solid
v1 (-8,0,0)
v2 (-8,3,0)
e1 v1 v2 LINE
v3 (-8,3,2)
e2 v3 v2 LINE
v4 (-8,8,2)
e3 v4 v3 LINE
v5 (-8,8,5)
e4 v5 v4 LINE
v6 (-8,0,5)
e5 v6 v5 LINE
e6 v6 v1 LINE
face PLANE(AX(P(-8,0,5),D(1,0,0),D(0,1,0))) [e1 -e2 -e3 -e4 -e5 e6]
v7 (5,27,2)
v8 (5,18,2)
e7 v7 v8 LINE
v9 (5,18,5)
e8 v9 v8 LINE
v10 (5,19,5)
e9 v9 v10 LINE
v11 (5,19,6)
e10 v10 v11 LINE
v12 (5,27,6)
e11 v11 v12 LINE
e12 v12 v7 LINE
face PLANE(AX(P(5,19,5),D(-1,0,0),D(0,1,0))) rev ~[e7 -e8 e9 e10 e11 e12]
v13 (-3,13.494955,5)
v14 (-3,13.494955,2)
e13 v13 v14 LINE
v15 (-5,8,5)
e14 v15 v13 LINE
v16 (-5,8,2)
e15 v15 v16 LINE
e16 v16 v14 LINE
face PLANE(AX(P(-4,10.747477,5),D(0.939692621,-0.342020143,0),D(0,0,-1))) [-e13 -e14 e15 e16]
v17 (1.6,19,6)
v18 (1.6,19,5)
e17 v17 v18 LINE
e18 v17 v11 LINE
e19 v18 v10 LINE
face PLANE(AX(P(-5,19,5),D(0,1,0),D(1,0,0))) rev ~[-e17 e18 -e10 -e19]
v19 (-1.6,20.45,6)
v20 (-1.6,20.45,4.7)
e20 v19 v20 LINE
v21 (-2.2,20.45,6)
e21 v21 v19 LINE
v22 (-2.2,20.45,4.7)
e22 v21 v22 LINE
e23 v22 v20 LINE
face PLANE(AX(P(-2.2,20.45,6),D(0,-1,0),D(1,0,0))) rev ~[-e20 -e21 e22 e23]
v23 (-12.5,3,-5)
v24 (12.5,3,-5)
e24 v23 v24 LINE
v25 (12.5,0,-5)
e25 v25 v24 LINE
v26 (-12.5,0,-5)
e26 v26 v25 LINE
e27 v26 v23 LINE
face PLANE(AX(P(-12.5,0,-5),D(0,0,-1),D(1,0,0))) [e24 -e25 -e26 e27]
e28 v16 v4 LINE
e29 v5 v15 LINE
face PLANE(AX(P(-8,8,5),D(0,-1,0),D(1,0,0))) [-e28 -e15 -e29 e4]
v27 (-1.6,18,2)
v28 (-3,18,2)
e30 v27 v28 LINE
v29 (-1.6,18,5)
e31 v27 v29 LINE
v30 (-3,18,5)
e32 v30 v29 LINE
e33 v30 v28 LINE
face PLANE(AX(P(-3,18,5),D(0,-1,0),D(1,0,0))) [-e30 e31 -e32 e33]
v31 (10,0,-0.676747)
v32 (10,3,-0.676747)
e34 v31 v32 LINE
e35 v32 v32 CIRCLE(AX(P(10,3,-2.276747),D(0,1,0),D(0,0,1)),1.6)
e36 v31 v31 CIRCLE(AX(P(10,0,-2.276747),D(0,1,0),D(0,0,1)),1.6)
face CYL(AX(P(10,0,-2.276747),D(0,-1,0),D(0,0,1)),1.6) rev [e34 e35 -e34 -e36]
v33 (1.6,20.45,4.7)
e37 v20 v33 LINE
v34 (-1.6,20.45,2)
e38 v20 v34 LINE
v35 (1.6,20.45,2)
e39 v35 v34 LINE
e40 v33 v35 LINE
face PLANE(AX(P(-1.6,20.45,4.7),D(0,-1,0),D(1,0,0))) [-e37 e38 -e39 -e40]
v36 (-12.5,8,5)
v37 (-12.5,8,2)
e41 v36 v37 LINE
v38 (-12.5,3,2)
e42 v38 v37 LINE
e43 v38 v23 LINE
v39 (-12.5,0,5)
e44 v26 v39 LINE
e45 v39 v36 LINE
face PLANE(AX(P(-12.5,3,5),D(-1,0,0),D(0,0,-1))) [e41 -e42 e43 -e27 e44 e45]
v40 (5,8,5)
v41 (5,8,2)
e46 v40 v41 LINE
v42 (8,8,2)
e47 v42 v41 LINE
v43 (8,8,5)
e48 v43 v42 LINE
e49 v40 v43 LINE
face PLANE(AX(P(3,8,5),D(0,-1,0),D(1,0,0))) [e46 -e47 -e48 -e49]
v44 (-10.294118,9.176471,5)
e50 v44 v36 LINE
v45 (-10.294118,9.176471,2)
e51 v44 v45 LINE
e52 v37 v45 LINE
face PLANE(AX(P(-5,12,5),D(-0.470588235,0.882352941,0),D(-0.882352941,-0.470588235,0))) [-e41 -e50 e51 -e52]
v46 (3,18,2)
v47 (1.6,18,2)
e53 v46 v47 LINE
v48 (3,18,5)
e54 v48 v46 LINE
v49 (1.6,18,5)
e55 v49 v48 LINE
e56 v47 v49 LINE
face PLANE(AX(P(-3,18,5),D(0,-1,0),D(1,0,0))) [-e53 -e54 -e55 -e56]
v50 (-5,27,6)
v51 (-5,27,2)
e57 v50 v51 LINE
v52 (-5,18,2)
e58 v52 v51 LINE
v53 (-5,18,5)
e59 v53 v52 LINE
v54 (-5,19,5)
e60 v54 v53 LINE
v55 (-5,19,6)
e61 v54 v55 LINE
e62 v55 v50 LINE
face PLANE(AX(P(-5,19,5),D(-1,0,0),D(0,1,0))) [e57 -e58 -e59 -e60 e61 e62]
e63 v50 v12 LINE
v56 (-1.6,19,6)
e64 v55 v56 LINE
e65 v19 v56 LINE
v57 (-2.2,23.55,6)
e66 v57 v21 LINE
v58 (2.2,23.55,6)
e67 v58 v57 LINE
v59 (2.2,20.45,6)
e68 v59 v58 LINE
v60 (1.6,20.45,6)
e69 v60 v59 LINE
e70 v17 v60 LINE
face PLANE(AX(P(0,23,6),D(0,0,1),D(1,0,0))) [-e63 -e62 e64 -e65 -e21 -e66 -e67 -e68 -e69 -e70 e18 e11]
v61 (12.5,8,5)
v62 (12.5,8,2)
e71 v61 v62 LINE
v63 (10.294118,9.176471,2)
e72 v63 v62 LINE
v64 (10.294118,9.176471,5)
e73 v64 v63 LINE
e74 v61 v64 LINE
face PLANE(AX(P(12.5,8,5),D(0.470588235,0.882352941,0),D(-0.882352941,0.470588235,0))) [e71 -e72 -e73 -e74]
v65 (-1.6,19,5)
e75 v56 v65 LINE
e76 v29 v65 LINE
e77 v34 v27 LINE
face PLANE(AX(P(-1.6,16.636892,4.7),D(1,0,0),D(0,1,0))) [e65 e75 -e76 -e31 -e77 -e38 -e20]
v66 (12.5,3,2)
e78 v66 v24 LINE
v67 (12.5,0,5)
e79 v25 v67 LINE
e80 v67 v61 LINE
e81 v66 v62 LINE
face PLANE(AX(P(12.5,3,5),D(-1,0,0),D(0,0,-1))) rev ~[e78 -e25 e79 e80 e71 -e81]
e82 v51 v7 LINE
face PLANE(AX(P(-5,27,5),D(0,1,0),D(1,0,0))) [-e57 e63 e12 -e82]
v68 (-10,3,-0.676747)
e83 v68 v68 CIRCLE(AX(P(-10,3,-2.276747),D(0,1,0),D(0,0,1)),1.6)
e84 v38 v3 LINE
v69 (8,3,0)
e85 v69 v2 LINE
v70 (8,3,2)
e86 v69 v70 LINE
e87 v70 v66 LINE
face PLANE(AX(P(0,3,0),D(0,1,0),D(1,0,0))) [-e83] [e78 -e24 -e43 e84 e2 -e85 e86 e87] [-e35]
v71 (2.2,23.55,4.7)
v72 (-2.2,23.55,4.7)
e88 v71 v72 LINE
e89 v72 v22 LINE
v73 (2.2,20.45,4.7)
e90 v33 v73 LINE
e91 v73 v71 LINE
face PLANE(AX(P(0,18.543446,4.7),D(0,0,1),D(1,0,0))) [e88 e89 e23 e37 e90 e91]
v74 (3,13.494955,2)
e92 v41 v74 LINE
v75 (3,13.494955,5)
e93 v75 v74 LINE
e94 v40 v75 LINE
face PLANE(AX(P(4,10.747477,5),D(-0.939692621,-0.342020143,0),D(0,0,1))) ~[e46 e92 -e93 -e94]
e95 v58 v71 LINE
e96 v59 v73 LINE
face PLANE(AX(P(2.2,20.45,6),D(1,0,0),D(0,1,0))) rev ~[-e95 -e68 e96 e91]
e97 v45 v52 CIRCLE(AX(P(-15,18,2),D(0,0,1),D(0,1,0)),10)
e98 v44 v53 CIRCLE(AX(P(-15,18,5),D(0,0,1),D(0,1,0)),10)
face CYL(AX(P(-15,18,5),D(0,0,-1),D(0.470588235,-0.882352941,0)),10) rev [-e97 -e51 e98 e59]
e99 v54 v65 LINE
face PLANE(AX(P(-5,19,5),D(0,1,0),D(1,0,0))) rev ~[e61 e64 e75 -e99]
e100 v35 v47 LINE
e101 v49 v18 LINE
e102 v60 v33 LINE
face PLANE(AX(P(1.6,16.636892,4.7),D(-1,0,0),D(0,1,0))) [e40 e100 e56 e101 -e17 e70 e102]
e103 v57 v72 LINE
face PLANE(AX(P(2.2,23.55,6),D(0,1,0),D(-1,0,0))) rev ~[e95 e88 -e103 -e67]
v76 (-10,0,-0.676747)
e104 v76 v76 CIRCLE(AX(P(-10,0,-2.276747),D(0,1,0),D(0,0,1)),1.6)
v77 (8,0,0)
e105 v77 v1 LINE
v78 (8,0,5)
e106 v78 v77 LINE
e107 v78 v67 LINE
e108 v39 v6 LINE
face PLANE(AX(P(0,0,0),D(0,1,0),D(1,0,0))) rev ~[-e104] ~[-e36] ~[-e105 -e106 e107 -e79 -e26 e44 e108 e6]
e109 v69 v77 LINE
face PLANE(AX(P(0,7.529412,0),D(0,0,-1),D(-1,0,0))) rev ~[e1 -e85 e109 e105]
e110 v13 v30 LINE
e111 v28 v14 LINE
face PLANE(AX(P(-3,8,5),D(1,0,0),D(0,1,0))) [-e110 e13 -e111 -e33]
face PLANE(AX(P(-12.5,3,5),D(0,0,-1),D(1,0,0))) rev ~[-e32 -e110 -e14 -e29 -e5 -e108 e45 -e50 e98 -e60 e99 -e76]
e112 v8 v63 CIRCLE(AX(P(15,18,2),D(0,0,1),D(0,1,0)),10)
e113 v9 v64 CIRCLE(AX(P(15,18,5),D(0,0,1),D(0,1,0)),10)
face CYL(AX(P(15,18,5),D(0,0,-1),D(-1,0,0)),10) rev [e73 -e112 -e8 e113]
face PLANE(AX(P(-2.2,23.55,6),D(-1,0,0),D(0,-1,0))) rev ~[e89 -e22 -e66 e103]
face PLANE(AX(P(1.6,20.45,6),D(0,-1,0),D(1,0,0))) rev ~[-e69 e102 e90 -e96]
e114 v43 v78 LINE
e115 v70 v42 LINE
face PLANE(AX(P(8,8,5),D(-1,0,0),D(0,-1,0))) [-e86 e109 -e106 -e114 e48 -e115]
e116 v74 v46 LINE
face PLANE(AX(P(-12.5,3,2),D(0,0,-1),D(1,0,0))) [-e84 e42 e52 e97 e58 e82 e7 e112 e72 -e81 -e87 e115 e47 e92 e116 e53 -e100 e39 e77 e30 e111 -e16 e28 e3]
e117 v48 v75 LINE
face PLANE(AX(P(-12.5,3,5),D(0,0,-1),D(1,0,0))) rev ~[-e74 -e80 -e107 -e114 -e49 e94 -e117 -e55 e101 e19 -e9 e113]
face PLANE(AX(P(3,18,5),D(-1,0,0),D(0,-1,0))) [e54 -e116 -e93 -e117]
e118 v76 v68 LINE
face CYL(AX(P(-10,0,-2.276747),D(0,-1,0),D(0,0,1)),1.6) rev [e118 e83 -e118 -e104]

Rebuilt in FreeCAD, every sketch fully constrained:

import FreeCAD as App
import Part
import Sketcher

V = App.Vector


def edges_at(feature, points):
    """Names of the edges that pass closest to the given points."""
    edges = feature.Shape.Edges
    near = lambda p: min(range(len(edges)), key=lambda i: edges[i].distToShape(Part.Vertex(*p))[0])
    return sorted({f"Edge{near(p) + 1}" for p in points})


def add_polygon(sketch, points):
    """Adds a closed chain of lines whose ends are joined by coincident constraints."""
    first, n = sketch.GeometryCount, len(points)
    for a, b in zip(points, points[1:] + points[:1]):
        sketch.addGeometry(Part.LineSegment(App.Vector(*a, 0), App.Vector(*b, 0)), False)
    for i in range(n):
        sketch.addConstraint(Sketcher.Constraint("Coincident", first + i, 2, first + (i + 1) % n, 1))

doc = App.newDocument("Part")
body = doc.addObject("PartDesign::Body", "Body")

# Sketch on XZ plane
sketch1 = body.newObject("Sketcher::SketchObject", "Sketch")
sketch1.AttachmentSupport = (doc.getObject("XZ_Plane"), [""])
sketch1.MapMode = "FlatFace"
add_polygon(sketch1, [(-12.5, -5), (-12.5, 5), (12.5, 5), (12.5, -5)])  # lines 0-3
sketch1.addGeometry(Part.Circle(V(-10, -2.3, 0), V(0, 0, 1), 1.6), False)  # 4
sketch1.addGeometry(Part.Circle(V(10, -2.3, 0), V(0, 0, 1), 1.6), False)  # 5
sketch1.addConstraint([
    Sketcher.Constraint("Vertical", 0),
    Sketcher.Constraint("Horizontal", 1),
    Sketcher.Constraint("Vertical", 2),
    Sketcher.Constraint("Horizontal", 3),
    Sketcher.Constraint("Equal", 4, 5),
    Sketcher.Constraint("Symmetric", 0, 2, 2, 2, -1, 1),
    Sketcher.Constraint("Symmetric", 4, 3, 5, 3, -2),
    Sketcher.Constraint("Diameter", 4, 3.2),
    Sketcher.Constraint("DistanceX", 1, 1, 1, 2, 25.0),
    Sketcher.Constraint("DistanceY", 0, 1, 0, 2, 10.0),
    Sketcher.Constraint("DistanceX", 4, 3, -1, 1, 10.0),
    Sketcher.Constraint("DistanceY", 4, 3, -1, 1, 2.276747),
])
pad1 = body.newObject("PartDesign::Pad", "Pad")
pad1.Profile = sketch1
pad1.Length = 3
pad1.Reversed = True

# Sketch on XZ plane
sketch2 = body.newObject("Sketcher::SketchObject", "Sketch001")
sketch2.AttachmentSupport = (doc.getObject("XZ_Plane"), [""])
sketch2.MapMode = "FlatFace"
sketch2.AttachmentOffset = App.Placement(V(0, 0, -3), App.Rotation())
add_polygon(sketch2, [(-12.5, 2), (-12.5, 5), (12.5, 5), (12.5, 2)])  # lines 0-3
sketch2.addConstraint([
    Sketcher.Constraint("Vertical", 0),
    Sketcher.Constraint("Horizontal", 1),
    Sketcher.Constraint("Vertical", 2),
    Sketcher.Constraint("Horizontal", 3),
    Sketcher.Constraint("DistanceX", 1, 1, 1, 2, 25.0),
    Sketcher.Constraint("DistanceY", 0, 1, 0, 2, 3.0),
    Sketcher.Constraint("DistanceY", -1, 1, 0, 2, 5.0),
    Sketcher.Constraint("DistanceX", 0, 2, -1, 1, 12.5),
])
pad2 = body.newObject("PartDesign::Pad", "Pad001")
pad2.Profile = sketch2
pad2.Length = 24
pad2.Reversed = True

# Sketch on XY plane
sketch3 = body.newObject("Sketcher::SketchObject", "Sketch002")
sketch3.AttachmentSupport = (doc.getObject("XY_Plane"), [""])
sketch3.MapMode = "FlatFace"
sketch3.AttachmentOffset = App.Placement(V(0, 0, 5), App.Rotation())
add_polygon(sketch3, [(8, 0), (8, 8), (3, 8), (3, 18), (-3, 18), (-3, 8), (-8, 8), (-8, 0)])  # lines 0-7
sketch3.addConstraint([
    Sketcher.Constraint("Vertical", 0),
    Sketcher.Constraint("Horizontal", 1),
    Sketcher.Constraint("Vertical", 2),
    Sketcher.Constraint("Horizontal", 3),
    Sketcher.Constraint("Vertical", 4),
    Sketcher.Constraint("Horizontal", 5),
    Sketcher.Constraint("Vertical", 6),
    Sketcher.Constraint("Horizontal", 7),
    Sketcher.Constraint("Symmetric", 6, 2, 7, 2, -1, 1),
    Sketcher.Constraint("Symmetric", 1, 2, 4, 2, -2),
    Sketcher.Constraint("DistanceX", 1, 2, 1, 1, 5.0),
    Sketcher.Constraint("DistanceX", 3, 2, 3, 1, 6.0),
    Sketcher.Constraint("DistanceY", 0, 1, 0, 2, 8.0),
    Sketcher.Constraint("DistanceY", 2, 1, 2, 2, 10.0),
])
pocket1 = body.newObject("PartDesign::Pocket", "Pocket")
pocket1.Profile = sketch3
pocket1.Length = 5

# Sketch on XY plane
sketch4 = body.newObject("Sketcher::SketchObject", "Sketch003")
sketch4.AttachmentSupport = (doc.getObject("XY_Plane"), [""])
sketch4.MapMode = "FlatFace"
sketch4.AttachmentOffset = App.Placement(V(0, 0, 5), App.Rotation())
add_polygon(sketch4, [(-17, 32), (-17, -5), (17, -5), (17, 32)])  # lines 0-3
add_polygon(sketch4, [(-5, 12), (-5, 27), (5, 27), (5, 12), (12, 8), (12, 0), (-12, 0), (-12, 8)])  # lines 4-11
sketch4.addConstraint([
    Sketcher.Constraint("Vertical", 0),
    Sketcher.Constraint("Horizontal", 1),
    Sketcher.Constraint("Vertical", 2),
    Sketcher.Constraint("Horizontal", 3),
    Sketcher.Constraint("Vertical", 4),
    Sketcher.Constraint("Horizontal", 5),
    Sketcher.Constraint("Vertical", 6),
    Sketcher.Constraint("Vertical", 8),
    Sketcher.Constraint("Horizontal", 9),
    Sketcher.Constraint("Vertical", 10),
    Sketcher.Constraint("Symmetric", 8, 2, 9, 2, -1, 1),
    Sketcher.Constraint("Symmetric", 6, 2, 11, 2, -2),
    Sketcher.Constraint("Horizontal", 7, 2, 10, 2),
    Sketcher.Constraint("DistanceX", 5, 1, 5, 2, 10.0),
    Sketcher.Constraint("DistanceX", 9, 2, 9, 1, 25.0),
    Sketcher.Constraint("DistanceY", 4, 1, 4, 2, 15.0),
    Sketcher.Constraint("DistanceY", 8, 2, 8, 1, 8.0),
    Sketcher.Constraint("DistanceY", -1, 1, 4, 2, 27.0),
    Sketcher.Constraint("DistanceX", 1, 1, 1, 2, 34.626),
    Sketcher.Constraint("DistanceY", 0, 2, 0, 1, 36.626),
    Sketcher.Constraint("DistanceX", 0, 2, -1, 1, 17.313),
    Sketcher.Constraint("DistanceY", 0, 2, -1, 1, 4.813),
])
pocket2 = body.newObject("PartDesign::Pocket", "Pocket001")
pocket2.Profile = sketch4
pocket2.Length = 5

# Sketch on XY plane
sketch5 = body.newObject("Sketcher::SketchObject", "Sketch004")
sketch5.AttachmentSupport = (doc.getObject("XY_Plane"), [""])
sketch5.MapMode = "FlatFace"
sketch5.AttachmentOffset = App.Placement(V(0, 0, 5), App.Rotation())
add_polygon(sketch5, [(-5, 27), (-5, 19), (5, 19), (5, 27)])  # lines 0-3
sketch5.addConstraint([
    Sketcher.Constraint("Vertical", 0),
    Sketcher.Constraint("Horizontal", 1),
    Sketcher.Constraint("Vertical", 2),
    Sketcher.Constraint("Horizontal", 3),
    Sketcher.Constraint("DistanceX", 1, 1, 1, 2, 10.0),
    Sketcher.Constraint("DistanceY", 0, 2, 0, 1, 8.0),
    Sketcher.Constraint("DistanceX", 0, 2, -1, 1, 5.0),
    Sketcher.Constraint("DistanceY", -1, 1, 0, 2, 19.0),
])
pad3 = body.newObject("PartDesign::Pad", "Pad002")
pad3.Profile = sketch5
pad3.Length = 1
doc.recompute()

chamfer = body.newObject("PartDesign::Chamfer", "Chamfer")
chamfer.Base = (pad3, edges_at(pad3, [(-3, 8, 3.5)]))
chamfer.ChamferType = "Two distances"
chamfer.Size = 2
chamfer.Size2 = 5.494955
chamfer.FlipDirection = True
doc.recompute()

chamfer2 = body.newObject("PartDesign::Chamfer", "Chamfer001")
chamfer2.Base = (chamfer, edges_at(chamfer, [(3, 8, 3.5)]))
chamfer2.ChamferType = "Two distances"
chamfer2.Size = 2
chamfer2.Size2 = 5.494955
chamfer2.FlipDirection = True

# Sketch on XY plane
sketch6 = body.newObject("Sketcher::SketchObject", "Sketch005")
sketch6.AttachmentSupport = (doc.getObject("XY_Plane"), [""])
sketch6.MapMode = "FlatFace"
sketch6.AttachmentOffset = App.Placement(V(0, 0, 6), App.Rotation())
add_polygon(sketch6, [(-2.2, 20.4), (-1.6, 20.4), (-1.6, 19), (1.6, 19), (1.6, 20.4), (2.2, 20.4), (2.2, 23.6), (-2.2, 23.6)])  # lines 0-7
sketch6.addConstraint([
    Sketcher.Constraint("Horizontal", 0),
    Sketcher.Constraint("Vertical", 1),
    Sketcher.Constraint("Horizontal", 2),
    Sketcher.Constraint("Vertical", 3),
    Sketcher.Constraint("Horizontal", 4),
    Sketcher.Constraint("Vertical", 5),
    Sketcher.Constraint("Horizontal", 6),
    Sketcher.Constraint("Vertical", 7),
    Sketcher.Constraint("Symmetric", 0, 2, 3, 2, -2),
    Sketcher.Constraint("Equal", 0, 4),
    Sketcher.Constraint("DistanceX", 0, 1, 0, 2, 0.6),
    Sketcher.Constraint("DistanceX", 2, 1, 2, 2, 3.2),
    Sketcher.Constraint("DistanceY", 5, 1, 5, 2, 3.1),
    Sketcher.Constraint("DistanceY", -1, 1, 1, 2, 19.0),
    Sketcher.Constraint("DistanceY", 1, 2, 1, 1, 1.45),
])
pocket3 = body.newObject("PartDesign::Pocket", "Pocket002")
pocket3.Profile = sketch6
pocket3.Length = 1.3

# Sketch on XY plane
sketch7 = body.newObject("Sketcher::SketchObject", "Sketch006")
sketch7.AttachmentSupport = (doc.getObject("XY_Plane"), [""])
sketch7.MapMode = "FlatFace"
sketch7.AttachmentOffset = App.Placement(V(0, 0, 4.7), App.Rotation())
add_polygon(sketch7, [(-1.6, 20.4), (-1.6, 16.6), (1.6, 16.6), (1.6, 20.4)])  # lines 0-3
sketch7.addConstraint([
    Sketcher.Constraint("Vertical", 0),
    Sketcher.Constraint("Horizontal", 1),
    Sketcher.Constraint("Vertical", 2),
    Sketcher.Constraint("Horizontal", 3),
    Sketcher.Constraint("DistanceX", 1, 1, 1, 2, 3.2),
    Sketcher.Constraint("DistanceX", 0, 2, -1, 1, 1.6),
    Sketcher.Constraint("DistanceY", -1, 1, 2, 2, 20.45),
    Sketcher.Constraint("DistanceY", 0, 2, 0, 1, 3.813108),
])
pocket4 = body.newObject("PartDesign::Pocket", "Pocket003")
pocket4.Profile = sketch7
pocket4.Type = "ThroughAll"
pocket4.Midplane = True
doc.recompute()

fillet = body.newObject("PartDesign::Fillet", "Fillet")
fillet.Base = (pocket4, edges_at(pocket4, [(-5, 12, 3.5), (5, 12, 3.5)]))
fillet.Radius = 10

doc.recompute()
